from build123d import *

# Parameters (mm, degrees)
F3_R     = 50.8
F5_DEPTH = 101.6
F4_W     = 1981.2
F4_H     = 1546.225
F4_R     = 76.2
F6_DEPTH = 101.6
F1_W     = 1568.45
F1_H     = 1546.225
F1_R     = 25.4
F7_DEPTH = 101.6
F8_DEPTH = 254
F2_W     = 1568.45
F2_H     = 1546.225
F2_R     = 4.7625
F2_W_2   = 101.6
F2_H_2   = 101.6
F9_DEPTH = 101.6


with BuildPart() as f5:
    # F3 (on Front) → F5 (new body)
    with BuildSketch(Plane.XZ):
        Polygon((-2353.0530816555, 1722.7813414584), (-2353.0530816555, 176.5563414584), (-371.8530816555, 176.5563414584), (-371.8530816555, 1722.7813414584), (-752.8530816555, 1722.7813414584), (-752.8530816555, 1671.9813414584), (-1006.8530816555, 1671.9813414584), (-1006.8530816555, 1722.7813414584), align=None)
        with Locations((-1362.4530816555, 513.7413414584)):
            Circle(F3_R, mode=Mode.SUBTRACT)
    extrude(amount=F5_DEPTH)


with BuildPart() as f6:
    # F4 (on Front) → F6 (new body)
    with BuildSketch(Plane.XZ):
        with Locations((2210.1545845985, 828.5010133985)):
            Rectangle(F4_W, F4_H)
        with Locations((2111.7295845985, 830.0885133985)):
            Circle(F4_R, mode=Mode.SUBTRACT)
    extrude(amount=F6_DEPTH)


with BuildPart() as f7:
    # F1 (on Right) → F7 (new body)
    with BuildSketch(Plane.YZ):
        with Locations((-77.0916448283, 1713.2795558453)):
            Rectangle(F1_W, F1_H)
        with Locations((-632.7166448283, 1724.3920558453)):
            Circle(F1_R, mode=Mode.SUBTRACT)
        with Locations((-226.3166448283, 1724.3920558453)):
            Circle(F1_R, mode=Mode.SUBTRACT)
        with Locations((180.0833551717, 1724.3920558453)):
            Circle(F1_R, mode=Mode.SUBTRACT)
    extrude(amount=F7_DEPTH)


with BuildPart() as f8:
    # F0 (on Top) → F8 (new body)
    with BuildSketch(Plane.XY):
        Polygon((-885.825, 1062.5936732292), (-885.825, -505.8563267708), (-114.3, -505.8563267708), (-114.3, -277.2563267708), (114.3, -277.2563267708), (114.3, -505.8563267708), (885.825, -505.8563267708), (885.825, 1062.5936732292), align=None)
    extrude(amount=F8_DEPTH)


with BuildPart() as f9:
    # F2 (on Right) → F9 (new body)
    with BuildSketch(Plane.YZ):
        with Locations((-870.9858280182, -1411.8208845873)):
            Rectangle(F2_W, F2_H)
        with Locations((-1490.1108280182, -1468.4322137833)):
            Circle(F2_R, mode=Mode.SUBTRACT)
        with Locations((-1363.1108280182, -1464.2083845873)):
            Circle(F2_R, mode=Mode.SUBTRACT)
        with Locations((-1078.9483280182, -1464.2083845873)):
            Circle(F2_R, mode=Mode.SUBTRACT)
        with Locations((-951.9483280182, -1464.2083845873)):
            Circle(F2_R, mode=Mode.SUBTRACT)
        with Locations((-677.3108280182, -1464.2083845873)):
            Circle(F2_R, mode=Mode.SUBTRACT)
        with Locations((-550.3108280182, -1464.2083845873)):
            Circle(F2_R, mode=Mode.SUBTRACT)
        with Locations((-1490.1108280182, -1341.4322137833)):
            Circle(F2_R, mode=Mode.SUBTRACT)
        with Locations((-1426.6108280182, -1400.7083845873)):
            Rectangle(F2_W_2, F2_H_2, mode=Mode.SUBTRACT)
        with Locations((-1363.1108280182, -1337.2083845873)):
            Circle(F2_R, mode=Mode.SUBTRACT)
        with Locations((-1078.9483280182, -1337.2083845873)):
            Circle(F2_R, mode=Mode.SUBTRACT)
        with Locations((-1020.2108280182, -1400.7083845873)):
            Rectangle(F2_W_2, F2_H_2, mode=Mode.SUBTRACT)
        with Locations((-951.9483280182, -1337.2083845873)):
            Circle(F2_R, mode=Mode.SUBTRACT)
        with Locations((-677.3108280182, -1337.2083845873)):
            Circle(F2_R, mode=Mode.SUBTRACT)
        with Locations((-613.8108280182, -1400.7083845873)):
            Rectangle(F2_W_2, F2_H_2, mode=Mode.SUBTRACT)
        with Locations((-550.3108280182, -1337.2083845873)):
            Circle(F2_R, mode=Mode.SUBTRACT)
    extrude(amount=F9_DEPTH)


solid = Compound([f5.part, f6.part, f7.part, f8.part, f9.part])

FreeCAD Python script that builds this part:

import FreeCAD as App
import Part
import Sketcher
Q = App.Units.Quantity

doc = App.newDocument("Part")
body = doc.addObject("PartDesign::Body", "Body")

# Sketch on XZ plane
sketch1 = body.newObject("Sketcher::SketchObject", "Sketch")
sketch1.AttachmentSupport = (doc.getObject("XZ_Plane"), [""])
sketch1.MapMode = "FlatFace"
sketch1.addGeometry([
    Part.LineSegment(App.Vector(-2353, 1723, 0), App.Vector(-2353, 177, 0)),  # 0
    Part.LineSegment(App.Vector(-2353, 177, 0), App.Vector(-372, 177, 0)),  # 1
    Part.LineSegment(App.Vector(-372, 177, 0), App.Vector(-372, 1723, 0)),  # 2
    Part.LineSegment(App.Vector(-372, 1723, 0), App.Vector(-753, 1723, 0)),  # 3
    Part.LineSegment(App.Vector(-753, 1723, 0), App.Vector(-753, 1672, 0)),  # 4
    Part.LineSegment(App.Vector(-753, 1672, 0), App.Vector(-1007, 1672, 0)),  # 5
    Part.LineSegment(App.Vector(-1007, 1672, 0), App.Vector(-1007, 1723, 0)),  # 6
    Part.LineSegment(App.Vector(-1007, 1723, 0), App.Vector(-2353, 1723, 0)),  # 7
    Part.Circle(App.Vector(-1362, 514, 0), App.Vector(0, 0, 1), 51),  # 8
], False)
sketch1.addConstraint([
    Sketcher.Constraint("Coincident", 0, 2, 1, 1),
    Sketcher.Constraint("Coincident", 1, 2, 2, 1),
    Sketcher.Constraint("Coincident", 2, 2, 3, 1),
    Sketcher.Constraint("Coincident", 3, 2, 4, 1),
    Sketcher.Constraint("Coincident", 4, 2, 5, 1),
    Sketcher.Constraint("Coincident", 5, 2, 6, 1),
    Sketcher.Constraint("Coincident", 6, 2, 7, 1),
    Sketcher.Constraint("Coincident", 7, 2, 0, 1),
    Sketcher.Constraint("Vertical", 0),
    Sketcher.Constraint("Horizontal", 1),
    Sketcher.Constraint("Vertical", 2),
    Sketcher.Constraint("Horizontal", 3),
    Sketcher.Constraint("Vertical", 4),
    Sketcher.Constraint("Horizontal", 5),
    Sketcher.Constraint("Vertical", 6),
    Sketcher.Constraint("Horizontal", 7),
    Sketcher.Constraint("Horizontal", 3, 2, 6, 2),
    Sketcher.Constraint("Diameter", 8, Q("4 in")),
    Sketcher.Constraint("DistanceX", 1, 1, 1, 2, Q("78 in")),
    Sketcher.Constraint("DistanceX", 3, 2, 3, 1, Q("15 in")),
    Sketcher.Constraint("DistanceX", 5, 2, 5, 1, Q("10 in")),
    Sketcher.Constraint("DistanceY", 4, 2, 4, 1, Q("2 in")),
    Sketcher.Constraint("DistanceX", 0, 2, 8, 3, Q("39 in")),
    Sketcher.Constraint("DistanceY", 8, 3, 2, 2, Q("47.6 in")),
    Sketcher.Constraint("DistanceY", 0, 2, 0, 1, Q("60.875 in")),
    Sketcher.Constraint("DistanceX", 8, 3, -1, 1, 1362.453082),
    Sketcher.Constraint("DistanceY", -1, 1, 8, 3, 513.741341),
])
pad1 = body.newObject("PartDesign::Pad", "Pad")
pad1.Profile = sketch1
pad1.Length = Q("4 in")
body2 = doc.addObject("PartDesign::Body", "Body001")

# Sketch on XZ plane
sketch2 = body2.newObject("Sketcher::SketchObject", "Sketch001")
sketch2.AttachmentSupport = (doc.getObject("XZ_Plane001"), [""])
sketch2.MapMode = "FlatFace"
sketch2.addGeometry([
    Part.LineSegment(App.Vector(1220, 1602, 0), App.Vector(1220, 55, 0)),  # 0
    Part.LineSegment(App.Vector(1220, 55, 0), App.Vector(3201, 55, 0)),  # 1
    Part.LineSegment(App.Vector(3201, 55, 0), App.Vector(3201, 1602, 0)),  # 2
    Part.LineSegment(App.Vector(3201, 1602, 0), App.Vector(1220, 1602, 0)),  # 3
    Part.Circle(App.Vector(2112, 830, 0), App.Vector(0, 0, 1), 76),  # 4
], False)
sketch2.addConstraint([
    Sketcher.Constraint("Coincident", 0, 2, 1, 1),
    Sketcher.Constraint("Coincident", 1, 2, 2, 1),
    Sketcher.Constraint("Coincident", 2, 2, 3, 1),
    Sketcher.Constraint("Coincident", 3, 2, 0, 1),
    Sketcher.Constraint("Vertical", 0),
    Sketcher.Constraint("Horizontal", 1),
    Sketcher.Constraint("Vertical", 2),
    Sketcher.Constraint("Horizontal", 3),
    Sketcher.Constraint("Diameter", 4, Q("6 in")),
    Sketcher.Constraint("DistanceX", 1, 1, 1, 2, Q("78 in")),
    Sketcher.Constraint("DistanceY", 0, 2, 4, 3, Q("30.5 in")),
    Sketcher.Constraint("DistanceY", 0, 2, 0, 1, Q("60.875 in")),
    Sketcher.Constraint("DistanceX", 0, 2, 4, 3, Q("35.125 in")),
    Sketcher.Constraint("DistanceX", -1, 1, 4, 3, 2111.729585),
    Sketcher.Constraint("DistanceY", -1, 1, 4, 3, 830.088513),
])
pad2 = body2.newObject("PartDesign::Pad", "Pad001")
pad2.Profile = sketch2
pad2.Length = Q("4 in")
body3 = doc.addObject("PartDesign::Body", "Body002")

# Sketch on YZ plane
sketch3 = body3.newObject("Sketcher::SketchObject", "Sketch002")
sketch3.AttachmentSupport = (doc.getObject("YZ_Plane002"), [""])
sketch3.MapMode = "FlatFace"
sketch3.addGeometry([
    Part.LineSegment(App.Vector(-861, 2486, 0), App.Vector(-861, 940, 0)),  # 0
    Part.LineSegment(App.Vector(-861, 940, 0), App.Vector(707, 940, 0)),  # 1
    Part.LineSegment(App.Vector(707, 940, 0), App.Vector(707, 2486, 0)),  # 2
    Part.LineSegment(App.Vector(707, 2486, 0), App.Vector(-861, 2486, 0)),  # 3
    Part.Circle(App.Vector(-633, 1724, 0), App.Vector(0, 0, 1), 25),  # 4
    Part.Circle(App.Vector(-226, 1724, 0), App.Vector(0, 0, 1), 25),  # 5
    Part.Circle(App.Vector(180, 1724, 0), App.Vector(0, 0, 1), 25),  # 6
], False)
sketch3.addConstraint([
    Sketcher.Constraint("Coincident", 0, 2, 1, 1),
    Sketcher.Constraint("Coincident", 1, 2, 2, 1),
    Sketcher.Constraint("Coincident", 2, 2, 3, 1),
    Sketcher.Constraint("Coincident", 3, 2, 0, 1),
    Sketcher.Constraint("Vertical", 0),
    Sketcher.Constraint("Horizontal", 1),
    Sketcher.Constraint("Vertical", 2),
    Sketcher.Constraint("Horizontal", 3),
    Sketcher.Constraint("Equal", 4, 5),
    Sketcher.Constraint("Equal", 5, 6),
    Sketcher.Constraint("Horizontal", 4, 3, 5, 3),
    Sketcher.Constraint("Horizontal", 5, 3, 6, 3),
    Sketcher.Constraint("Diameter", 4, Q("2 in")),
    Sketcher.Constraint("DistanceX", 4, 3, 5, 3, Q("16 in")),
    Sketcher.Constraint("DistanceX", 5, 3, 6, 3, Q("16 in")),
    Sketcher.Constraint("DistanceX", 0, 2, 4, 3, Q("9 in")),
    Sketcher.Constraint("DistanceY", 6, 3, 2, 2, Q("30 in")),
    Sketcher.Constraint("DistanceX", 1, 1, 1, 2, Q("61.75 in")),
    Sketcher.Constraint("DistanceY", 0, 2, 0, 1, Q("60.875 in")),
    Sketcher.Constraint("DistanceX", 4, 3, -1, 1, 632.716645),
    Sketcher.Constraint("DistanceY", -1, 1, 4, 3, 1724.392056),
])
pad3 = body3.newObject("PartDesign::Pad", "Pad002")
pad3.Profile = sketch3
pad3.Length = Q("4 in")
body4 = doc.addObject("PartDesign::Body", "Body003")

# Sketch on XY plane
sketch4 = body4.newObject("Sketcher::SketchObject", "Sketch003")
sketch4.AttachmentSupport = (doc.getObject("XY_Plane003"), [""])
sketch4.MapMode = "FlatFace"
sketch4.addGeometry([
    Part.LineSegment(App.Vector(-886, 1063, 0), App.Vector(-886, -506, 0)),  # 0
    Part.LineSegment(App.Vector(-886, -506, 0), App.Vector(-114, -506, 0)),  # 1
    Part.LineSegment(App.Vector(-114, -506, 0), App.Vector(-114, -277, 0)),  # 2
    Part.LineSegment(App.Vector(-114, -277, 0), App.Vector(114, -277, 0)),  # 3
    Part.LineSegment(App.Vector(114, -277, 0), App.Vector(114, -506, 0)),  # 4
    Part.LineSegment(App.Vector(114, -506, 0), App.Vector(886, -506, 0)),  # 5
    Part.LineSegment(App.Vector(886, -506, 0), App.Vector(886, 1063, 0)),  # 6
    Part.LineSegment(App.Vector(886, 1063, 0), App.Vector(-886, 1063, 0)),  # 7
], False)
sketch4.addConstraint([
    Sketcher.Constraint("Coincident", 0, 2, 1, 1),
    Sketcher.Constraint("Coincident", 1, 2, 2, 1),
    Sketcher.Constraint("Coincident", 2, 2, 3, 1),
    Sketcher.Constraint("Coincident", 3, 2, 4, 1),
    Sketcher.Constraint("Coincident", 4, 2, 5, 1),
    Sketcher.Constraint("Coincident", 5, 2, 6, 1),
    Sketcher.Constraint("Coincident", 6, 2, 7, 1),
    Sketcher.Constraint("Coincident", 7, 2, 0, 1),
    Sketcher.Constraint("Vertical", 0),
    Sketcher.Constraint("Horizontal", 1),
    Sketcher.Constraint("Vertical", 2),
    Sketcher.Constraint("Horizontal", 3),
    Sketcher.Constraint("Vertical", 4),
    Sketcher.Constraint("Horizontal", 5),
    Sketcher.Constraint("Vertical", 6),
    Sketcher.Constraint("Horizontal", 7),
    Sketcher.Constraint("Symmetric", 1, 2, 4, 2, -2),
    Sketcher.Constraint("Equal", 1, 5),
    Sketcher.Constraint("Equal", 3, 2),
    Sketcher.Constraint("DistanceX", 3, 1, 3, 2, Q("9 in")),
    Sketcher.Constraint("DistanceX", 7, 2, 7, 1, Q("69.75 in")),
    Sketcher.Constraint("DistanceY", 0, 2, 0, 1, Q("61.75 in")),
    Sketcher.Constraint("DistanceY", 0, 2, -1, 1, 505.856327),
])
pad4 = body4.newObject("PartDesign::Pad", "Pad003")
pad4.Profile = sketch4
pad4.Length = Q("10 in")
body5 = doc.addObject("PartDesign::Body", "Body004")

# Sketch on YZ plane
sketch5 = body5.newObject("Sketcher::SketchObject", "Sketch004")
sketch5.AttachmentSupport = (doc.getObject("YZ_Plane004"), [""])
sketch5.MapMode = "FlatFace"
sketch5.addGeometry([
    Part.LineSegment(App.Vector(-1655.2, -638.7, 0), App.Vector(-1655.2, -2184.9, 0)),  # 0
    Part.LineSegment(App.Vector(-1655.2, -2184.9, 0), App.Vector(-86.8, -2184.9, 0)),  # 1
    Part.LineSegment(App.Vector(-86.8, -2184.9, 0), App.Vector(-86.8, -638.7, 0)),  # 2
    Part.LineSegment(App.Vector(-86.8, -638.7, 0), App.Vector(-1655.2, -638.7, 0)),  # 3
    Part.Circle(App.Vector(-1490.1, -1468.4, 0), App.Vector(0, 0, 1), 4.8),  # 4
    Part.Circle(App.Vector(-1363.1, -1464.2, 0), App.Vector(0, 0, 1), 4.8),  # 5
    Part.Circle(App.Vector(-1078.9, -1464.2, 0), App.Vector(0, 0, 1), 4.8),  # 6
    Part.Circle(App.Vector(-951.9, -1464.2, 0), App.Vector(0, 0, 1), 4.8),  # 7
    Part.Circle(App.Vector(-677.3, -1464.2, 0), App.Vector(0, 0, 1), 4.8),  # 8
    Part.Circle(App.Vector(-550.3, -1464.2, 0), App.Vector(0, 0, 1), 4.8),  # 9
    Part.LineSegment(App.Vector(-1375.8, -1451.5, 0), App.Vector(-1477.4, -1451.5, 0)),  # 10
    Part.LineSegment(App.Vector(-1477.4, -1451.5, 0), App.Vector(-1477.4, -1349.9, 0)),  # 11
    Part.LineSegment(App.Vector(-1477.4, -1349.9, 0), App.Vector(-1375.8, -1349.9, 0)),  # 12
    Part.LineSegment(App.Vector(-1375.8, -1349.9, 0), App.Vector(-1375.8, -1451.5, 0)),  # 13
    Part.Circle(App.Vector(-1490.1, -1341.4, 0), App.Vector(0, 0, 1), 4.8),  # 14
    Part.Circle(App.Vector(-1363.1, -1337.2, 0), App.Vector(0, 0, 1), 4.8),  # 15
    Part.Circle(App.Vector(-1078.9, -1337.2, 0), App.Vector(0, 0, 1), 4.8),  # 16
    Part.LineSegment(App.Vector(-969.4, -1451.5, 0), App.Vector(-1071, -1451.5, 0)),  # 17
    Part.LineSegment(App.Vector(-1071, -1451.5, 0), App.Vector(-1071, -1349.9, 0)),  # 18
    Part.LineSegment(App.Vector(-1071, -1349.9, 0), App.Vector(-969.4, -1349.9, 0)),  # 19
    Part.LineSegment(App.Vector(-969.4, -1349.9, 0), App.Vector(-969.4, -1451.5, 0)),  # 20
    Part.LineSegment(App.Vector(-563, -1451.5, 0), App.Vector(-664.6, -1451.5, 0)),  # 21
    Part.LineSegment(App.Vector(-664.6, -1451.5, 0), App.Vector(-664.6, -1349.9, 0)),  # 22
    Part.LineSegment(App.Vector(-664.6, -1349.9, 0), App.Vector(-563, -1349.9, 0)),  # 23
    Part.LineSegment(App.Vector(-563, -1349.9, 0), App.Vector(-563, -1451.5, 0)),  # 24
    Part.Circle(App.Vector(-951.9, -1337.2, 0), App.Vector(0, 0, 1), 4.8),  # 25
    Part.Circle(App.Vector(-677.3, -1337.2, 0), App.Vector(0, 0, 1), 4.8),  # 26
    Part.Circle(App.Vector(-550.3, -1337.2, 0), App.Vector(0, 0, 1), 4.8),  # 27
], False)
sketch5.addConstraint([
    Sketcher.Constraint("Coincident", 0, 2, 1, 1),
    Sketcher.Constraint("Coincident", 1, 2, 2, 1),
    Sketcher.Constraint("Coincident", 2, 2, 3, 1),
    Sketcher.Constraint("Coincident", 3, 2, 0, 1),
    Sketcher.Constraint("Coincident", 10, 2, 11, 1),
    Sketcher.Constraint("Coincident", 11, 2, 12, 1),
    Sketcher.Constraint("Coincident", 12, 2, 13, 1),
    Sketcher.Constraint("Coincident", 13, 2, 10, 1),
    Sketcher.Constraint("Coincident", 17, 2, 18, 1),
    Sketcher.Constraint("Coincident", 18, 2, 19, 1),
    Sketcher.Constraint("Coincident", 19, 2, 20, 1),
    Sketcher.Constraint("Coincident", 20, 2, 17, 1),
    Sketcher.Constraint("Coincident", 21, 2, 22, 1),
    Sketcher.Constraint("Coincident", 22, 2, 23, 1),
    Sketcher.Constraint("Coincident", 23, 2, 24, 1),
    Sketcher.Constraint("Coincident", 24, 2, 21, 1),
    Sketcher.Constraint("Vertical", 0),
    Sketcher.Constraint("Horizontal", 1),
    Sketcher.Constraint("Vertical", 2),
    Sketcher.Constraint("Horizontal", 3),
    Sketcher.Constraint("Horizontal", 10),
    Sketcher.Constraint("Vertical", 11),
    Sketcher.Constraint("Horizontal", 12),
    Sketcher.Constraint("Vertical", 13),
    Sketcher.Constraint("Horizontal", 17),
    Sketcher.Constraint("Vertical", 18),
    Sketcher.Constraint("Horizontal", 19),
    Sketcher.Constraint("Vertical", 20),
    Sketcher.Constraint("Horizontal", 21),
    Sketcher.Constraint("Vertical", 22),
    Sketcher.Constraint("Horizontal", 23),
    Sketcher.Constraint("Vertical", 24),
    Sketcher.Constraint("Equal", 4, 5),
    Sketcher.Constraint("Equal", 5, 6),
    Sketcher.Constraint("Equal", 6, 7),
    Sketcher.Constraint("Equal", 7, 8),
    Sketcher.Constraint("Equal", 8, 9),
    Sketcher.Constraint("Equal", 9, 14),
    Sketcher.Constraint("Equal", 14, 15),
    Sketcher.Constraint("Equal", 15, 16),
    Sketcher.Constraint("Equal", 16, 25),
    Sketcher.Constraint("Equal", 25, 26),
    Sketcher.Constraint("Equal", 26, 27),
    Sketcher.Constraint("Horizontal", 5, 3, 6, 3),
    Sketcher.Constraint("Horizontal", 6, 3, 7, 3),
    Sketcher.Constraint("Horizontal", 7, 3, 8, 3),
    Sketcher.Constraint("Horizontal", 8, 3, 9, 3),
    Sketcher.Constraint("Horizontal", 15, 3, 16, 3),
    Sketcher.Constraint("Horizontal", 16, 3, 25, 3),
    Sketcher.Constraint("Horizontal", 25, 3, 26, 3),
    Sketcher.Constraint("Horizontal", 26, 3, 27, 3),
    Sketcher.Constraint("Horizontal", 13, 2, 17, 2),
    Sketcher.Constraint("Horizontal", 12, 2, 18, 2),
    Sketcher.Constraint("Horizontal", 20, 2, 21, 2),
    Sketcher.Constraint("Horizontal", 19, 2, 22, 2),
    Sketcher.Constraint("Vertical", 4, 3, 14, 3),
    Sketcher.Constraint("Vertical", 5, 3, 15, 3),
    Sketcher.Constraint("Vertical", 6, 3, 16, 3),
    Sketcher.Constraint("Vertical", 7, 3, 25, 3),
    Sketcher.Constraint("Vertical", 8, 3, 26, 3),
    Sketcher.Constraint("Vertical", 9, 3, 27, 3),
    Sketcher.Constraint("Equal", 12, 17),
    Sketcher.Constraint("Equal", 19, 21),
    Sketcher.Constraint("Equal", 23, 11),
    Sketcher.Constraint("DistanceX", 10, 2, 10, 1, Q("4 in")),
    Sketcher.Constraint("Diameter", 4, Q("0.375 in")),
    Sketcher.Constraint("DistanceX", 4, 3, 5, 3, Q("5 in")),
    Sketcher.Constraint("DistanceX", 6, 3, 7, 3, Q("5 in")),
    Sketcher.Constraint("DistanceX", 5, 3, 8, 3, Q("27 in")),
    Sketcher.Constraint("DistanceX", 8, 3, 9, 3, Q("5 in")),
    Sketcher.Constraint("DistanceY", 4, 3, 14, 3, Q("5 in")),
    Sketcher.Constraint("DistanceY", 5, 3, 15, 3, Q("5 in")),
    Sketcher.Constraint("DistanceX", 1, 1, 1, 2, Q("61.75 in")),
    Sketcher.Constraint("DistanceX", 0, 2, 4, 3, Q("6.5 in")),
    Sketcher.Constraint("DistanceY", 27, 3, 2, 2, Q("27.5 in")),
    Sketcher.Constraint("DistanceX", 4, 3, 10, 2, Q("0.5 in")),
    Sketcher.Constraint("DistanceY", 5, 3, 10, 2, Q("0.5 in")),
    Sketcher.Constraint("DistanceX", 5, 3, 17, 2, Q("11.5 in")),
    Sketcher.Constraint("DistanceX", 8, 3, 21, 2, Q("0.5 in")),
    Sketcher.Constraint("DistanceY", 0, 2, 0, 1, Q("60.875 in")),
    Sketcher.Constraint("DistanceX", 5, 3, 6, 3, Q("11.1875 in")),
    Sketcher.Constraint("DistanceX", 4, 3, -1, 1, 1490.110828),
    Sketcher.Constraint("DistanceY", 4, 3, 5, 3, 4.223829),
    Sketcher.Constraint("DistanceY", 4, 3, -1, 1, 1468.432214),
])
pad5 = body5.newObject("PartDesign::Pad", "Pad004")
pad5.Profile = sketch5
pad5.Length = Q("4 in")

doc.recompute()
